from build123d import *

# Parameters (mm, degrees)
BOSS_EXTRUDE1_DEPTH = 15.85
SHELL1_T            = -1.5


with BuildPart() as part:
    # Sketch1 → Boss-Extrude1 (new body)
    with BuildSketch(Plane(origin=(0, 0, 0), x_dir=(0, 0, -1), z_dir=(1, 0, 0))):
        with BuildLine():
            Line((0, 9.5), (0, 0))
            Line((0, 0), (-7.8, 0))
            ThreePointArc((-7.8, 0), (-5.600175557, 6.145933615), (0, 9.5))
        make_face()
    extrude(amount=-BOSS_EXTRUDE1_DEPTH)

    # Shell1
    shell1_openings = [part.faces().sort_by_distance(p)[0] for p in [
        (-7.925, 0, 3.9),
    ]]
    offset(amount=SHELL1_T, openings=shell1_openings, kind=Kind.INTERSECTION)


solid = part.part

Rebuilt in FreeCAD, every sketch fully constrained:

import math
import FreeCAD as App
import Part
import Sketcher

V = App.Vector
Q = App.Units.Quantity


def faces_at(feature, points):
    """Names of the faces that lie closest to the given points."""
    faces = feature.Shape.Faces
    near = lambda p: min(range(len(faces)), key=lambda i: faces[i].distToShape(Part.Vertex(*p))[0])
    return sorted({f"Face{near(p) + 1}" for p in points})

doc = App.newDocument("Part")
body = doc.addObject("PartDesign::Body", "Body")

sketch1 = body.newObject("Sketcher::SketchObject", "Sketch")
sketch1.AttachmentSupport = (doc.getObject("YZ_Plane"), [""])
sketch1.MapMode = "FlatFace"
sketch1.addGeometry([
    Part.LineSegment(V(0, 0, 0), V(10, 0, 0)),
    Part.ArcOfCircle(Part.Circle(V(0, -2, 0), V(0, 0, 1), 10), math.radians(11), math.radians(90)),
    Part.LineSegment(V(0, 8, 0), V(0, 0, 0)),
], False)
sketch1.addConstraint([
    Sketcher.Constraint("Coincident", 0, 2, 1, 1),
    Sketcher.Constraint("Coincident", 1, 2, 2, 1),
    Sketcher.Constraint("Coincident", 2, 2, 0, 1),
    Sketcher.Constraint("Horizontal", 0),
    Sketcher.Constraint("Vertical", 2),
    Sketcher.Constraint("Coincident", 2, 2, -1, 1),
    Sketcher.Constraint("PointOnObject", 1, 3, -2),
    Sketcher.Constraint("DistanceX", 0, 1, 0, 2, Q("9.5 mm")),
    Sketcher.Constraint("DistanceY", 2, 2, 2, 1, Q("7.8 mm")),
])
pad1 = body.newObject("PartDesign::Pad", "Pad")
pad1.Profile = sketch1
pad1.Length = 15.85
pad1.Reversed = True
doc.recompute()

thickness = body.newObject("PartDesign::Thickness", "Thickness")
thickness.Base = (pad1, faces_at(pad1, [(-7.925, 0, 3.9)]))
thickness.Value = 1.5
thickness.Reversed = True
thickness.Join = "Intersection"

doc.recompute()
